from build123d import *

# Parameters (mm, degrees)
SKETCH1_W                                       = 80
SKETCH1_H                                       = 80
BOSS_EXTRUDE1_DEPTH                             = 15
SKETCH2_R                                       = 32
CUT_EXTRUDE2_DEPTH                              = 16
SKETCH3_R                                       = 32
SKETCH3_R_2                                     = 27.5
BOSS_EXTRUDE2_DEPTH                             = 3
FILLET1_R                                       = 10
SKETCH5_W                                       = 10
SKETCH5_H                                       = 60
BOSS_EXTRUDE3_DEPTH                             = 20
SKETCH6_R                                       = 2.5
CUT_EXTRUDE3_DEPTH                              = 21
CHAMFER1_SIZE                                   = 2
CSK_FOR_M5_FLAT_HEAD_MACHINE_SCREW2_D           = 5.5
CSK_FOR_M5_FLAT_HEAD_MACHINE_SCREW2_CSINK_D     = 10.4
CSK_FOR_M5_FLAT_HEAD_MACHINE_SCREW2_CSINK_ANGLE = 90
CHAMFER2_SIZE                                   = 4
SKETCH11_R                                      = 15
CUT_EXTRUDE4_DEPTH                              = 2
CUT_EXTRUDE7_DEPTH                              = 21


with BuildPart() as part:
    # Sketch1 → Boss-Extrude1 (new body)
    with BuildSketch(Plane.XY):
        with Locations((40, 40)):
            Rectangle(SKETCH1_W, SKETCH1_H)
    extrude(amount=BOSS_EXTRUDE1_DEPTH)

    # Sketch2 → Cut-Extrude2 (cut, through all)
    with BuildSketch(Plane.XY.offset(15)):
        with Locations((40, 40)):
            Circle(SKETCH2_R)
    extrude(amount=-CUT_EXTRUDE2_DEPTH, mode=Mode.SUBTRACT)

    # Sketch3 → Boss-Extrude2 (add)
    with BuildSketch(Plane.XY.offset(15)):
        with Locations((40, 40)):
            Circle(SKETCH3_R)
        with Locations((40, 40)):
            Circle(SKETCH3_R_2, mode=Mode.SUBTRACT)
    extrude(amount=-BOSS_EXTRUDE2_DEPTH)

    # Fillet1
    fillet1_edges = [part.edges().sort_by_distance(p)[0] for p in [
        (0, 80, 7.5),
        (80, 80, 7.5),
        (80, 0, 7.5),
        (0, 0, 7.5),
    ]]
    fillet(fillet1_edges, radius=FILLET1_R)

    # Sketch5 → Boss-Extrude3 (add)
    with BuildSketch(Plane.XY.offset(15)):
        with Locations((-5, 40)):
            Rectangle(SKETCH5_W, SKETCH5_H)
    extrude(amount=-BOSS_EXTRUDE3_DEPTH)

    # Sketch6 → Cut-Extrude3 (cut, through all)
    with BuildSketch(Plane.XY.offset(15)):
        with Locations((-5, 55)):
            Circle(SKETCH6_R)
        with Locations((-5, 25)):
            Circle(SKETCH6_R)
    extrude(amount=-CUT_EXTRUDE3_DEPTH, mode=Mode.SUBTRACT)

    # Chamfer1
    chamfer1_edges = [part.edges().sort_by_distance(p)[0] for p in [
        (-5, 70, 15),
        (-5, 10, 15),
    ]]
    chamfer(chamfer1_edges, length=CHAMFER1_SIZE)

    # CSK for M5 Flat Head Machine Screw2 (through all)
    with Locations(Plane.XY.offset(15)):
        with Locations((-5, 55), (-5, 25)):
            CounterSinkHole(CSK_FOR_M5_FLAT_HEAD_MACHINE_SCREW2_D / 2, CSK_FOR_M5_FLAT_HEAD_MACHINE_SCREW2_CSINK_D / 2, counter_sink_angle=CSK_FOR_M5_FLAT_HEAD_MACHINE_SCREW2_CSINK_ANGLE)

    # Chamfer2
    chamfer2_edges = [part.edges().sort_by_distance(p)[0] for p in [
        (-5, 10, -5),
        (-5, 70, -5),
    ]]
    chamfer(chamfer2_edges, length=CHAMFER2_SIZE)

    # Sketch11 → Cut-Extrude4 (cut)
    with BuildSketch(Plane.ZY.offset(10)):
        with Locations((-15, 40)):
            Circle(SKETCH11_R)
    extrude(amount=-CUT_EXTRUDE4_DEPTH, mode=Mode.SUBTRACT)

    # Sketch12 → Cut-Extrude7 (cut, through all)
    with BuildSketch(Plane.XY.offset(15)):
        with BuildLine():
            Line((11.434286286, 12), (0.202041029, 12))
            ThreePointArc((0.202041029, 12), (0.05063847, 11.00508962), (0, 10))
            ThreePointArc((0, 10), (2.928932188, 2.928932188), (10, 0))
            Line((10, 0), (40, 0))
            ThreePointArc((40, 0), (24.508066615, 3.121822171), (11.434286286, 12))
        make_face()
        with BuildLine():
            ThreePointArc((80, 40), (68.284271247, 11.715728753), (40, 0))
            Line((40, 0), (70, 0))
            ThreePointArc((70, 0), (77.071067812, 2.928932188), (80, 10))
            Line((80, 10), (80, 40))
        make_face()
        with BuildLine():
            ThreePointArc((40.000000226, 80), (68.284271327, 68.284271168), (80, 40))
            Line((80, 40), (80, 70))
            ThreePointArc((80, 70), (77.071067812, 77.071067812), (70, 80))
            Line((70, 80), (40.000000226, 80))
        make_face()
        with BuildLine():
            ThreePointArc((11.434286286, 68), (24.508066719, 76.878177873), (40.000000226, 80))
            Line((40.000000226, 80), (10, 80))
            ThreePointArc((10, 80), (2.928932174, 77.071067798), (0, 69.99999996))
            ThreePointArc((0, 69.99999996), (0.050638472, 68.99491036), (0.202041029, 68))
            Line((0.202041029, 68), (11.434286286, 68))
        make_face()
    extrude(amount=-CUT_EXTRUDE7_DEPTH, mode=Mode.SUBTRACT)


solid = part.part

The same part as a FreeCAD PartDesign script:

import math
import FreeCAD as App
import Part
import Sketcher
Q = App.Units.Quantity


def edges_at(feature, points):
    """Names of the edges that pass closest to the given points."""
    edges = feature.Shape.Edges
    near = lambda p: min(range(len(edges)), key=lambda i: edges[i].distToShape(Part.Vertex(*p))[0])
    return sorted({f"Edge{near(p) + 1}" for p in points})

doc = App.newDocument("Part")
body = doc.addObject("PartDesign::Body", "Body")

# Sketch on XY plane
sketch1 = body.newObject("Sketcher::SketchObject", "Sketch")
sketch1.AttachmentSupport = (doc.getObject("XY_Plane"), [""])
sketch1.MapMode = "FlatFace"
sketch1.addGeometry([
    Part.LineSegment(App.Vector(0, 80, 0), App.Vector(0, 0, 0)),
    Part.LineSegment(App.Vector(0, 0, 0), App.Vector(80, 0, 0)),
    Part.LineSegment(App.Vector(80, 0, 0), App.Vector(80, 80, 0)),
    Part.LineSegment(App.Vector(80, 80, 0), App.Vector(0, 80, 0)),
], False)
sketch1.addConstraint([
    Sketcher.Constraint("Coincident", 0, 2, 1, 1),
    Sketcher.Constraint("Coincident", 1, 2, 2, 1),
    Sketcher.Constraint("Coincident", 2, 2, 3, 1),
    Sketcher.Constraint("Coincident", 3, 2, 0, 1),
    Sketcher.Constraint("Vertical", 0),
    Sketcher.Constraint("Horizontal", 1),
    Sketcher.Constraint("Vertical", 2),
    Sketcher.Constraint("Horizontal", 3),
    Sketcher.Constraint("Coincident", 0, 2, -1, 1),
    Sketcher.Constraint("Equal", 3, 0),
    Sketcher.Constraint("DistanceX", 1, 1, 1, 2, Q("80 mm")),
])
pad1 = body.newObject("PartDesign::Pad", "Pad")
pad1.Profile = sketch1
pad1.Length = 15

# Sketch on XY plane
sketch2 = body.newObject("Sketcher::SketchObject", "Sketch001")
sketch2.AttachmentSupport = (doc.getObject("XY_Plane"), [""])
sketch2.MapMode = "FlatFace"
sketch2.AttachmentOffset = App.Placement(App.Vector(0, 0, 15), App.Rotation())
sketch2.addGeometry(Part.Circle(App.Vector(40, 40, 0), App.Vector(0, 0, 1), 32), False)
sketch2.addConstraint([
    Sketcher.Constraint("Diameter", 0, Q("64 mm")),
    Sketcher.Constraint("DistanceX", -1, 1, 0, 3, Q("40 mm")),
    Sketcher.Constraint("DistanceY", -1, 1, 0, 3, Q("40 mm")),
])
pocket1 = body.newObject("PartDesign::Pocket", "Pocket")
pocket1.Profile = sketch2
pocket1.Type = "ThroughAll"

# Sketch on XY plane
sketch3 = body.newObject("Sketcher::SketchObject", "Sketch002")
sketch3.AttachmentSupport = (doc.getObject("XY_Plane"), [""])
sketch3.MapMode = "FlatFace"
sketch3.AttachmentOffset = App.Placement(App.Vector(0, 0, 15), App.Rotation())
sketch3.addGeometry([
    Part.Circle(App.Vector(40, 40, 0), App.Vector(0, 0, 1), 32),
    Part.Circle(App.Vector(40, 40, 0), App.Vector(0, 0, 1), 27.5),
], False)
sketch3.addConstraint([
    Sketcher.Constraint("Coincident", 1, 3, 0, 3),
    Sketcher.Constraint("Diameter", 0, Q("64 mm")),
    Sketcher.Constraint("Diameter", 1, Q("55 mm")),
    Sketcher.Constraint("DistanceX", -1, 1, 0, 3, Q("40 mm")),
    Sketcher.Constraint("DistanceY", -1, 1, 0, 3, Q("40 mm")),
])
pad2 = body.newObject("PartDesign::Pad", "Pad001")
pad2.Profile = sketch3
pad2.Length = 3
pad2.Reversed = True
doc.recompute()

fillet = body.newObject("PartDesign::Fillet", "Fillet")
fillet.Base = (pad2, edges_at(pad2, [
    (0, 80, 7.5),
    (80, 80, 7.5),
    (80, 0, 7.5),
    (0, 0, 7.5),
]))
fillet.Radius = 10

# Sketch on XY plane
sketch4 = body.newObject("Sketcher::SketchObject", "Sketch003")
sketch4.AttachmentSupport = (doc.getObject("XY_Plane"), [""])
sketch4.MapMode = "FlatFace"
sketch4.AttachmentOffset = App.Placement(App.Vector(0, 0, 15), App.Rotation())
sketch4.addGeometry([
    Part.LineSegment(App.Vector(-10, 70, 0), App.Vector(-10, 10, 0)),
    Part.LineSegment(App.Vector(-10, 10, 0), App.Vector(0, 10, 0)),
    Part.LineSegment(App.Vector(0, 10, 0), App.Vector(0, 70, 0)),
    Part.LineSegment(App.Vector(0, 70, 0), App.Vector(-10, 70, 0)),
], False)
sketch4.addConstraint([
    Sketcher.Constraint("Coincident", 0, 2, 1, 1),
    Sketcher.Constraint("Coincident", 1, 2, 2, 1),
    Sketcher.Constraint("Coincident", 2, 2, 3, 1),
    Sketcher.Constraint("Coincident", 3, 2, 0, 1),
    Sketcher.Constraint("Vertical", 0),
    Sketcher.Constraint("Horizontal", 1),
    Sketcher.Constraint("Vertical", 2),
    Sketcher.Constraint("Horizontal", 3),
    Sketcher.Constraint("PointOnObject", 1, 2, -2),
    Sketcher.Constraint("DistanceX", 1, 1, 1, 2, Q("10 mm")),
    Sketcher.Constraint("DistanceY", 0, 2, 0, 1, Q("60 mm")),
    Sketcher.Constraint("DistanceY", -1, 1, 0, 2, Q("10 mm")),
])
pad3 = body.newObject("PartDesign::Pad", "Pad002")
pad3.Profile = sketch4
pad3.Length = 20
pad3.Reversed = True

# Sketch on XY plane
sketch5 = body.newObject("Sketcher::SketchObject", "Sketch004")
sketch5.AttachmentSupport = (doc.getObject("XY_Plane"), [""])
sketch5.MapMode = "FlatFace"
sketch5.AttachmentOffset = App.Placement(App.Vector(0, 0, 15), App.Rotation())
sketch5.addGeometry([
    Part.Circle(App.Vector(-5, 55, 0), App.Vector(0, 0, 1), 2.5),
    Part.Circle(App.Vector(-5, 25, 0), App.Vector(0, 0, 1), 2.5),
], False)
sketch5.addConstraint([
    Sketcher.Constraint("Equal", 0, 1),
    Sketcher.Constraint("Vertical", 0, 3, 1, 3),
    Sketcher.Constraint("Diameter", 0, Q("5 mm")),
    Sketcher.Constraint("DistanceX", 0, 3, -1, 1, Q("5 mm")),
    Sketcher.Constraint("DistanceY", -1, 1, 0, 3, Q("55 mm")),
    Sketcher.Constraint("DistanceY", -1, 1, 1, 3, Q("25 mm")),
])
pocket2 = body.newObject("PartDesign::Pocket", "Pocket001")
pocket2.Profile = sketch5
pocket2.Type = "ThroughAll"
doc.recompute()

chamfer = body.newObject("PartDesign::Chamfer", "Chamfer")
chamfer.Base = (pocket2, edges_at(pocket2, [(-5, 70, 15), (-5, 10, 15)]))
chamfer.Size = 2

# Sketch on XY plane
sketch6 = body.newObject("Sketcher::SketchObject", "Sketch005")
sketch6.AttachmentSupport = (doc.getObject("XY_Plane"), [""])
sketch6.MapMode = "FlatFace"
sketch6.AttachmentOffset = App.Placement(App.Vector(0, 0, 15), App.Rotation())
sketch6.addGeometry([
    Part.Circle(App.Vector(-5, 55, 0), App.Vector(0, 0, 1), 2.75),
    Part.Circle(App.Vector(-5, 25, 0), App.Vector(0, 0, 1), 2.75),
], False)
sketch6.addConstraint([
    Sketcher.Constraint("Equal", 0, 1),
    Sketcher.Constraint("Vertical", 0, 3, 1, 3),
    Sketcher.Constraint("Diameter", 0, Q("5.5 mm")),
    Sketcher.Constraint("DistanceX", 0, 3, -1, 1, Q("5 mm")),
    Sketcher.Constraint("DistanceY", -1, 1, 0, 3, Q("55 mm")),
    Sketcher.Constraint("DistanceY", -1, 1, 1, 3, Q("25 mm")),
])
doc.recompute()
hole = body.newObject("PartDesign::Hole", "Hole")
hole.Profile = sketch6
hole.ThreadType = "None"
hole.Diameter = 5.5
hole.DepthType = "ThroughAll"
hole.HoleCutType = "Countersink"
hole.HoleCutDiameter = 10.4
hole.HoleCutCountersinkAngle = 90
doc.recompute()

chamfer2 = body.newObject("PartDesign::Chamfer", "Chamfer001")
chamfer2.Base = (hole, edges_at(hole, [(-5, 10, -5), (-5, 70, -5)]))
chamfer2.Size = 4

# Sketch on YZ plane
sketch7 = body.newObject("Sketcher::SketchObject", "Sketch006")
sketch7.AttachmentSupport = (doc.getObject("YZ_Plane"), [""])
sketch7.MapMode = "FlatFace"
sketch7.AttachmentOffset = App.Placement(App.Vector(0, 0, -10), App.Rotation())
sketch7.addGeometry(Part.Circle(App.Vector(40, -15, 0), App.Vector(0, 0, 1), 15), False)
sketch7.addConstraint([
    Sketcher.Constraint("Diameter", 0, Q("30 mm")),
    Sketcher.Constraint("DistanceX", -1, 1, 0, 3, Q("40 mm")),
    Sketcher.Constraint("DistanceY", 0, 3, -1, 1, Q("15 mm")),
])
pocket3 = body.newObject("PartDesign::Pocket", "Pocket002")
pocket3.Profile = sketch7
pocket3.Length = 2
pocket3.Reversed = True

# Sketch on XY plane
sketch8 = body.newObject("Sketcher::SketchObject", "Sketch007")
sketch8.AttachmentSupport = (doc.getObject("XY_Plane"), [""])
sketch8.MapMode = "FlatFace"
sketch8.AttachmentOffset = App.Placement(App.Vector(0, 0, 15), App.Rotation())
sketch8.addGeometry([
    Part.LineSegment(App.Vector(11.434286, 12, 0), App.Vector(0.202041, 12, 0)),  # 0
    Part.ArcOfCircle(Part.Circle(App.Vector(10, 10, 0), App.Vector(0, 0, 1), 10), math.radians(168.463041), math.radians(270)),  # 1
    Part.LineSegment(App.Vector(10, 0, 0), App.Vector(40, 0, 0)),  # 2
    Part.ArcOfCircle(Part.Circle(App.Vector(40, 40, 0), App.Vector(0, 0, 1), 40), math.radians(-135.572996), math.radians(-90)),  # 3
    Part.ArcOfCircle(Part.Circle(App.Vector(40, 40, 0), App.Vector(0, 0, 1), 40), math.radians(-90), math.radians(0)),  # 4
    Part.LineSegment(App.Vector(40, 0, 0), App.Vector(70, 0, 0)),  # 5
    Part.ArcOfCircle(Part.Circle(App.Vector(70, 10, 0), App.Vector(0, 0, 1), 10), math.radians(-90), math.radians(0)),  # 6
    Part.LineSegment(App.Vector(80, 10, 0), App.Vector(80, 40, 0)),  # 7
    Part.ArcOfCircle(Part.Circle(App.Vector(40, 40, 0), App.Vector(0, 0, 1), 40), math.radians(0), math.radians(90)),  # 8
    Part.LineSegment(App.Vector(80, 40, 0), App.Vector(80, 70, 0)),  # 9
    Part.ArcOfCircle(Part.Circle(App.Vector(70, 70, 0), App.Vector(0, 0, 1), 10), math.radians(0), math.radians(90)),  # 10
    Part.LineSegment(App.Vector(70, 80, 0), App.Vector(40, 80, 0)),  # 11
    Part.ArcOfCircle(Part.Circle(App.Vector(40, 40, 0), App.Vector(0, 0, 1), 40), math.radians(90), math.radians(135.572996)),  # 12
    Part.LineSegment(App.Vector(40, 80, 0), App.Vector(10, 80, 0)),  # 13
    Part.ArcOfCircle(Part.Circle(App.Vector(10, 70, 0), App.Vector(0, 0, 1), 10), math.radians(90), math.radians(180)),  # 14
    Part.ArcOfCircle(Part.Circle(App.Vector(10, 70, 0), App.Vector(0, 0, 1), 10), math.radians(-180), math.radians(-168.463041)),  # 15
    Part.LineSegment(App.Vector(0.202041, 68, 0), App.Vector(11.434286, 68, 0)),  # 16
], False)
sketch8.addConstraint([
    Sketcher.Constraint("Coincident", 0, 2, 1, 1),
    Sketcher.Constraint("Tangent", 1, 2, 2, 1),
    Sketcher.Constraint("Tangent", 2, 2, 3, 2),
    Sketcher.Constraint("Coincident", 3, 1, 0, 1),
    Sketcher.Constraint("Tangent", 4, 1, 5, 1),
    Sketcher.Constraint("Tangent", 5, 2, 6, 1),
    Sketcher.Constraint("Tangent", 6, 2, 7, 1),
    Sketcher.Constraint("Tangent", 7, 2, 4, 2),
    Sketcher.Constraint("Tangent", 8, 1, 9, 1),
    Sketcher.Constraint("Tangent", 9, 2, 10, 1),
    Sketcher.Constraint("Tangent", 10, 2, 11, 1),
    Sketcher.Constraint("Tangent", 11, 2, 8, 2),
    Sketcher.Constraint("Tangent", 12, 1, 13, 1),
    Sketcher.Constraint("Tangent", 13, 2, 14, 1),
    Sketcher.Constraint("Tangent", 14, 2, 15, 1),
    Sketcher.Constraint("Coincident", 15, 2, 16, 1),
    Sketcher.Constraint("Coincident", 16, 2, 12, 2),
    Sketcher.Constraint("Horizontal", 0),
    Sketcher.Constraint("Horizontal", 2),
    Sketcher.Constraint("Horizontal", 5),
    Sketcher.Constraint("Vertical", 7),
    Sketcher.Constraint("Vertical", 9),
    Sketcher.Constraint("Horizontal", 11),
    Sketcher.Constraint("Horizontal", 13),
    Sketcher.Constraint("Horizontal", 16),
    Sketcher.Constraint("Coincident", 4, 3, 3, 3),
    Sketcher.Constraint("Coincident", 8, 3, 3, 3),
    Sketcher.Constraint("Coincident", 12, 3, 3, 3),
    Sketcher.Constraint("Equal", 3, 4),
    Sketcher.Constraint("Equal", 1, 6),
    Sketcher.Constraint("Equal", 4, 8),
    Sketcher.Constraint("Equal", 6, 10),
    Sketcher.Constraint("Equal", 8, 12),
    Sketcher.Constraint("Equal", 10, 14),
    Sketcher.Constraint("Equal", 14, 15),
    Sketcher.Constraint("PointOnObject", 1, 2, -1),
    Sketcher.Constraint("PointOnObject", 14, 2, -2),
    Sketcher.Constraint("Horizontal", 9, 2, 14, 2),
    Sketcher.Constraint("Vertical", 1, 3, 14, 3),
    Sketcher.Constraint("Vertical", 0, 2, 15, 2),
    Sketcher.Constraint("Equal", 2, 5),
    Sketcher.Constraint("Radius", 1, Q("10 mm")),
    Sketcher.Constraint("Radius", 3, Q("40 mm")),
    Sketcher.Constraint("DistanceY", -1, 1, 0, 2, Q("12 mm")),
])
pocket4 = body.newObject("PartDesign::Pocket", "Pocket003")
pocket4.Profile = sketch8
pocket4.Type = "ThroughAll"

doc.recompute()
